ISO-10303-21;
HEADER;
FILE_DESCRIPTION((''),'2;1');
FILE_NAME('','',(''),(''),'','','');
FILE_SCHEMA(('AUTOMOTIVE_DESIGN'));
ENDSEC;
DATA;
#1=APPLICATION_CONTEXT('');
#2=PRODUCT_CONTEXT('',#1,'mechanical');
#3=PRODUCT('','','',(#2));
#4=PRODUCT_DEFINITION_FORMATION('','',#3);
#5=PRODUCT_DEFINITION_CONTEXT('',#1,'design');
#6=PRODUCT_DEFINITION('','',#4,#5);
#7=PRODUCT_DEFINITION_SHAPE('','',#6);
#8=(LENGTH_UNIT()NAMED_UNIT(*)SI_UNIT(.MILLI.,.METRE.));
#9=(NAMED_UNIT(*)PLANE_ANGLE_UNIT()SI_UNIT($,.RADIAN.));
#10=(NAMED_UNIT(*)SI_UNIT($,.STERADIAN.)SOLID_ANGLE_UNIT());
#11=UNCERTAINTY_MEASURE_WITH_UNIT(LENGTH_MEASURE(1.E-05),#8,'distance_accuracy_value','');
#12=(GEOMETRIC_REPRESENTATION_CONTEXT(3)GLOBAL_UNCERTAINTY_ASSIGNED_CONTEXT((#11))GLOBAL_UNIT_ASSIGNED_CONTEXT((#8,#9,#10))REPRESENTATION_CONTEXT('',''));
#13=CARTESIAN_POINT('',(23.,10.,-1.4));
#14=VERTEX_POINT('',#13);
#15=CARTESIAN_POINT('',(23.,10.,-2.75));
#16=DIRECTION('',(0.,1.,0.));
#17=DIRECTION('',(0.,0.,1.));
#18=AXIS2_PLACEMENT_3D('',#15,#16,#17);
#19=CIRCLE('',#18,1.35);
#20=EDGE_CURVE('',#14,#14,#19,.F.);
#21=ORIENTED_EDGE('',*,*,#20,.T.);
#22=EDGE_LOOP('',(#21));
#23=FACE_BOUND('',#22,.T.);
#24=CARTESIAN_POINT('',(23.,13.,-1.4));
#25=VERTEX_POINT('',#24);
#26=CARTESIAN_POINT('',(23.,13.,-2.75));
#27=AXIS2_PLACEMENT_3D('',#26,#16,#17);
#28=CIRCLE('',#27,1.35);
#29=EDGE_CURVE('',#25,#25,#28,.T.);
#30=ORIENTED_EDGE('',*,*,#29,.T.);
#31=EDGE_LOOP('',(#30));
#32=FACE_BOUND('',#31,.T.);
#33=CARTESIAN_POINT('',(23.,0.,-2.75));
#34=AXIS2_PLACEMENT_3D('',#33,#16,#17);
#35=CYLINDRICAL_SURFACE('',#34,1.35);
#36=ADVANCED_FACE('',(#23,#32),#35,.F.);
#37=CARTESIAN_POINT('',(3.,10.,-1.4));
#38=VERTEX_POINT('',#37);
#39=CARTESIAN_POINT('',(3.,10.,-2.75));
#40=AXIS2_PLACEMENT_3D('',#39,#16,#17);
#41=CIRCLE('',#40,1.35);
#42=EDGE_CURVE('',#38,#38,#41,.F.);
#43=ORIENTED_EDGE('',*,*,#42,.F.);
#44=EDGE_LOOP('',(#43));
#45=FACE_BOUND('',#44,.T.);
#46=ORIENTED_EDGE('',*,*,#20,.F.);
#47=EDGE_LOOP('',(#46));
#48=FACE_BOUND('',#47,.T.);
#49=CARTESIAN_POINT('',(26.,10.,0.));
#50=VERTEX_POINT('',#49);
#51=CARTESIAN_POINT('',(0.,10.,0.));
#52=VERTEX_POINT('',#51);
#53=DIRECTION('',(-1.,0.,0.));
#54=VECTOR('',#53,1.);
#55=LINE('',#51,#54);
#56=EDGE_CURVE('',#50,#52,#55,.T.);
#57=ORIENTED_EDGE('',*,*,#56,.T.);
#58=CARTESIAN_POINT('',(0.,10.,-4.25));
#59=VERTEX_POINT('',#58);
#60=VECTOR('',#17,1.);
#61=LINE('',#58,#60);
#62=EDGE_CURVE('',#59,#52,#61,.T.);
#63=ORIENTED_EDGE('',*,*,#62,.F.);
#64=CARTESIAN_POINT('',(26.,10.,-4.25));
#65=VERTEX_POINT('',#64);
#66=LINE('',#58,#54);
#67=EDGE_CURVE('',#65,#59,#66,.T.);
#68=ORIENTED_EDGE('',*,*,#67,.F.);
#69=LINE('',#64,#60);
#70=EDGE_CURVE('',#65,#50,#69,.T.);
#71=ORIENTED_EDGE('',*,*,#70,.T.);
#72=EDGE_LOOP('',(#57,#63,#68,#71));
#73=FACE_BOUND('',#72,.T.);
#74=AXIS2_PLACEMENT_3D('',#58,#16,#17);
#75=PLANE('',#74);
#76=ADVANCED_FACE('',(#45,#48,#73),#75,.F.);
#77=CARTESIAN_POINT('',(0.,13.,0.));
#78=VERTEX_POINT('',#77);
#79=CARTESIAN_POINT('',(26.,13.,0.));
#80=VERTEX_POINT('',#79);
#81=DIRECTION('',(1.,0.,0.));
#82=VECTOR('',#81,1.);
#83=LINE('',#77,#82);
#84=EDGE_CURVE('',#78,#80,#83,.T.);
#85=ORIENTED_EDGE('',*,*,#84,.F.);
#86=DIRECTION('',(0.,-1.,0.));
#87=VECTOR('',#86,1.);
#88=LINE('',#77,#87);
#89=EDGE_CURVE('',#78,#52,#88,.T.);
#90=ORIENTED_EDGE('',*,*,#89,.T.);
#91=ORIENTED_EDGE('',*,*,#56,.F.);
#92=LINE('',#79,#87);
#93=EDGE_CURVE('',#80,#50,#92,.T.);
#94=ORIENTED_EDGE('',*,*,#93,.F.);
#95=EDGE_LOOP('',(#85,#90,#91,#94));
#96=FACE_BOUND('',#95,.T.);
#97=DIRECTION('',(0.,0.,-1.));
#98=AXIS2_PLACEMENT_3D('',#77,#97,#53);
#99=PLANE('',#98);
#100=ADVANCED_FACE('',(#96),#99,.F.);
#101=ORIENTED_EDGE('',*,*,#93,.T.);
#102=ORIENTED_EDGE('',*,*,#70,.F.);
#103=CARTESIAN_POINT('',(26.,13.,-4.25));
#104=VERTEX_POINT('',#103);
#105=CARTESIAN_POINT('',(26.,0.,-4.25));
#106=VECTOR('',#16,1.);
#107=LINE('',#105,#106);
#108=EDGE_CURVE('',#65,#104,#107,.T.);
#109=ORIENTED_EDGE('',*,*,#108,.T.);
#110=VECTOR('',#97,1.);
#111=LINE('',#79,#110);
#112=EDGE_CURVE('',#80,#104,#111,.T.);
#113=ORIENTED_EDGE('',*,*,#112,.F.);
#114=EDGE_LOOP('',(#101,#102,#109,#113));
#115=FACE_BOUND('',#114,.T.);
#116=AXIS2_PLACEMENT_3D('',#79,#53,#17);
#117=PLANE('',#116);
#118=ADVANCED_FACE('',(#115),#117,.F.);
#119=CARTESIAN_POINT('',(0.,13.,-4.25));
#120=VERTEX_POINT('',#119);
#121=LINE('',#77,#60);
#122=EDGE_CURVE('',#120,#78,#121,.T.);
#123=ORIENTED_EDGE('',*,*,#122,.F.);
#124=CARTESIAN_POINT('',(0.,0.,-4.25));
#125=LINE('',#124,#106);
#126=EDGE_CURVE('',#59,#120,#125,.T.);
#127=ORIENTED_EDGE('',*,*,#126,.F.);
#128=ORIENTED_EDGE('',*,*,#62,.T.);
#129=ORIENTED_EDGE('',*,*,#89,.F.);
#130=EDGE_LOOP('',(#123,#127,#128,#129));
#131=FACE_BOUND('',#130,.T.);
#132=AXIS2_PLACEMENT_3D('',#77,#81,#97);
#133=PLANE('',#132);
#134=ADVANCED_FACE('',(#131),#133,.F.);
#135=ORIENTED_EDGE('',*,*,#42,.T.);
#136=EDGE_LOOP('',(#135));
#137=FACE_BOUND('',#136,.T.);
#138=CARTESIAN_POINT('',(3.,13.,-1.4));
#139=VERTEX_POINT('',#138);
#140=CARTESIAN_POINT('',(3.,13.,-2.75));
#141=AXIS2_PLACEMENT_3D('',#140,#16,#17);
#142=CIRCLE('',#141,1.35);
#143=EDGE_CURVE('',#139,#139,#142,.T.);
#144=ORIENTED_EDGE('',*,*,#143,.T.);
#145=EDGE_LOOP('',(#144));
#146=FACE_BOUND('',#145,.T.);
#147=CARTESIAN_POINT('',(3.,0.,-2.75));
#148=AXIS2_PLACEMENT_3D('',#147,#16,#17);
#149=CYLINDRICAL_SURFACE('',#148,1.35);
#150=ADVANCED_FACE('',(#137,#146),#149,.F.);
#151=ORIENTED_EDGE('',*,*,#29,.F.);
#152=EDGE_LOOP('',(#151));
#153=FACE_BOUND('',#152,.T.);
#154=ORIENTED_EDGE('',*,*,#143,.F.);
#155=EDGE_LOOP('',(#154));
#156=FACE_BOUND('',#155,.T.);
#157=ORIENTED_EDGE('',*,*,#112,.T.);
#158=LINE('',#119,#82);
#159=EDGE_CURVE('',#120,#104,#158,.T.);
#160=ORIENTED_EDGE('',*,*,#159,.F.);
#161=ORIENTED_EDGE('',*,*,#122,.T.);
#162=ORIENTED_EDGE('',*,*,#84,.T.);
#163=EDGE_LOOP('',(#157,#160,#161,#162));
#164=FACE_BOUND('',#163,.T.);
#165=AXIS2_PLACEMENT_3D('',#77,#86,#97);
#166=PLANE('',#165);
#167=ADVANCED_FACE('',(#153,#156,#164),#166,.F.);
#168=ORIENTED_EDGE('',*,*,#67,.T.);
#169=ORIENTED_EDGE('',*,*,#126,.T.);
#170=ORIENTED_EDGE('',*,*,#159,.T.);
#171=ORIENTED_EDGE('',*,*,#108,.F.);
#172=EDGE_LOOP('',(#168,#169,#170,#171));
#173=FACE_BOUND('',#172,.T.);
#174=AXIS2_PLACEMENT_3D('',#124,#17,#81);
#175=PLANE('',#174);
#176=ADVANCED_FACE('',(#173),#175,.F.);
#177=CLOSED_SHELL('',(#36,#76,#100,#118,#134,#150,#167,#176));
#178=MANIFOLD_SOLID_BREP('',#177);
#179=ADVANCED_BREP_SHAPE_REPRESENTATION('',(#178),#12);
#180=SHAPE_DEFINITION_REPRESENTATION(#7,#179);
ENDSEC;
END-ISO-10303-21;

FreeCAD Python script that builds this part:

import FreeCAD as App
import Part
import Sketcher


def add_polygon(sketch, points):
    """Adds a closed chain of lines whose ends are joined by coincident constraints."""
    first, n = sketch.GeometryCount, len(points)
    for a, b in zip(points, points[1:] + points[:1]):
        sketch.addGeometry(Part.LineSegment(App.Vector(*a, 0), App.Vector(*b, 0)), False)
    for i in range(n):
        sketch.addConstraint(Sketcher.Constraint("Coincident", first + i, 2, first + (i + 1) % n, 1))

doc = App.newDocument("Part")
params = doc.addObject("Spreadsheet::Sheet", "Params")
for row, (alias, value) in enumerate([
    ("sketch1_width", "26 mm"),
    ("sketch1_height", "18 mm"),
    ("pad1_length", "13 mm"),
    ("sketch2_diameter", "2.7 mm"),
    ("sketch3_width", "26 mm"),
    ("sketch3_height", "13.75 mm"),
    ("sketch4_width", "26 mm"),
    ("sketch4_height", "10 mm"),
], start=1):
    params.set(f"A{row}", alias)
    params.set(f"B{row}", "=" + value)
    params.setAlias(f"B{row}", alias)

body = doc.addObject("PartDesign::Body", "Body")

# Sketch on XZ plane
sketch1 = doc.addObject("Sketcher::SketchObject", "Sketch")
body.addObject(sketch1)
sketch1.AttachmentSupport = (doc.XZ_Plane, [""])
sketch1.MapMode = "FlatFace"
add_polygon(sketch1, [(0, -18), (0, 0), (26, 0), (26, -18)])  # lines 0-3
sketch1.addConstraint(Sketcher.Constraint("Vertical", 0))
sketch1.addConstraint(Sketcher.Constraint("Horizontal", 1))
sketch1.addConstraint(Sketcher.Constraint("Vertical", 2))
sketch1.addConstraint(Sketcher.Constraint("Horizontal", 3))
sketch1.addConstraint(Sketcher.Constraint("Coincident", 0, 2, -1, 1))
sketch1.addConstraint(Sketcher.Constraint("DistanceX", 1, 1, 1, 2, 26.0))
sketch1.addConstraint(Sketcher.Constraint("DistanceY", 0, 1, 0, 2, 18.0))
sketch1.setExpression("Constraints[9]", "Params.sketch1_width")
sketch1.setExpression("Constraints[10]", "Params.sketch1_height")
pad1 = doc.addObject("PartDesign::Pad", "Pad")
body.addObject(pad1)
pad1.Profile = sketch1
pad1.setExpression("Length", "Params.pad1_length")
pad1.Reversed = True

# Sketch on XZ plane
sketch2 = doc.addObject("Sketcher::SketchObject", "Sketch001")
body.addObject(sketch2)
sketch2.AttachmentSupport = (doc.XZ_Plane, [""])
sketch2.MapMode = "FlatFace"
sketch2.AttachmentOffset = App.Placement(App.Vector(0, 0, -13), App.Rotation())
sketch2.addGeometry(Part.Circle(App.Vector(3, -15.25, 0), App.Vector(0, 0, 1), 1.35), False)
sketch2.addGeometry(Part.Circle(App.Vector(23, -15.25, 0), App.Vector(0, 0, 1), 1.35), False)
sketch2.addGeometry(Part.Circle(App.Vector(3, -2.75, 0), App.Vector(0, 0, 1), 1.35), False)
sketch2.addGeometry(Part.Circle(App.Vector(23, -2.75, 0), App.Vector(0, 0, 1), 1.35), False)
sketch2.addConstraint(Sketcher.Constraint("Equal", 0, 1))
sketch2.addConstraint(Sketcher.Constraint("Equal", 1, 2))
sketch2.addConstraint(Sketcher.Constraint("Equal", 2, 3))
sketch2.addConstraint(Sketcher.Constraint("Horizontal", 0, 3, 1, 3))
sketch2.addConstraint(Sketcher.Constraint("Horizontal", 2, 3, 3, 3))
sketch2.addConstraint(Sketcher.Constraint("Vertical", 0, 3, 2, 3))
sketch2.addConstraint(Sketcher.Constraint("Vertical", 1, 3, 3, 3))
sketch2.addConstraint(Sketcher.Constraint("Diameter", 0, 2.7))
sketch2.addConstraint(Sketcher.Constraint("DistanceX", -1, 1, 0, 3, 3.0))
sketch2.addConstraint(Sketcher.Constraint("DistanceX", -1, 1, 1, 3, 23.0))
sketch2.addConstraint(Sketcher.Constraint("DistanceY", 0, 3, 2, 3, 12.5))
sketch2.addConstraint(Sketcher.Constraint("DistanceY", 0, 3, -1, 1, 15.25))
sketch2.setExpression("Constraints[7]", "Params.sketch2_diameter")
pocket1 = doc.addObject("PartDesign::Pocket", "Pocket")
body.addObject(pocket1)
pocket1.Profile = sketch2
pocket1.Type = "ThroughAll"
pocket1.Reversed = True

# Sketch on XZ plane
sketch3 = doc.addObject("Sketcher::SketchObject", "Sketch002")
body.addObject(sketch3)
sketch3.AttachmentSupport = (doc.XZ_Plane, [""])
sketch3.MapMode = "FlatFace"
sketch3.AttachmentOffset = App.Placement(App.Vector(0, 0, -13), App.Rotation())
add_polygon(sketch3, [(0, -18), (0, -4.25), (26, -4.25), (26, -18)])  # lines 0-3
sketch3.addConstraint(Sketcher.Constraint("Vertical", 0))
sketch3.addConstraint(Sketcher.Constraint("Horizontal", 1))
sketch3.addConstraint(Sketcher.Constraint("Vertical", 2))
sketch3.addConstraint(Sketcher.Constraint("Horizontal", 3))
sketch3.addConstraint(Sketcher.Constraint("PointOnObject", 0, 2, -2))
sketch3.addConstraint(Sketcher.Constraint("DistanceX", 1, 1, 1, 2, 26.0))
sketch3.addConstraint(Sketcher.Constraint("DistanceY", 2, 2, -1, 1, 18.0))
sketch3.addConstraint(Sketcher.Constraint("DistanceY", 0, 1, 0, 2, 13.75))
sketch3.setExpression("Constraints[9]", "Params.sketch3_width")
sketch3.setExpression("Constraints[11]", "Params.sketch3_height")
pocket2 = doc.addObject("PartDesign::Pocket", "Pocket001")
body.addObject(pocket2)
pocket2.Profile = sketch3
pocket2.Type = "ThroughAll"
pocket2.Reversed = True

# Sketch on XY plane
sketch4 = doc.addObject("Sketcher::SketchObject", "Sketch003")
body.addObject(sketch4)
sketch4.AttachmentSupport = (doc.XY_Plane, [""])
sketch4.MapMode = "FlatFace"
add_polygon(sketch4, [(0, 10), (0, 0), (26, 0), (26, 10)])  # lines 0-3
sketch4.addConstraint(Sketcher.Constraint("Vertical", 0))
sketch4.addConstraint(Sketcher.Constraint("Horizontal", 1))
sketch4.addConstraint(Sketcher.Constraint("Vertical", 2))
sketch4.addConstraint(Sketcher.Constraint("Horizontal", 3))
sketch4.addConstraint(Sketcher.Constraint("Coincident", 0, 2, -1, 1))
sketch4.addConstraint(Sketcher.Constraint("DistanceX", 1, 1, 1, 2, 26.0))
sketch4.addConstraint(Sketcher.Constraint("DistanceY", 0, 2, 0, 1, 10.0))
sketch4.setExpression("Constraints[9]", "Params.sketch4_width")
sketch4.setExpression("Constraints[10]", "Params.sketch4_height")
pocket3 = doc.addObject("PartDesign::Pocket", "Pocket002")
body.addObject(pocket3)
pocket3.Profile = sketch4
pocket3.Type = "ThroughAll"

doc.recompute()
